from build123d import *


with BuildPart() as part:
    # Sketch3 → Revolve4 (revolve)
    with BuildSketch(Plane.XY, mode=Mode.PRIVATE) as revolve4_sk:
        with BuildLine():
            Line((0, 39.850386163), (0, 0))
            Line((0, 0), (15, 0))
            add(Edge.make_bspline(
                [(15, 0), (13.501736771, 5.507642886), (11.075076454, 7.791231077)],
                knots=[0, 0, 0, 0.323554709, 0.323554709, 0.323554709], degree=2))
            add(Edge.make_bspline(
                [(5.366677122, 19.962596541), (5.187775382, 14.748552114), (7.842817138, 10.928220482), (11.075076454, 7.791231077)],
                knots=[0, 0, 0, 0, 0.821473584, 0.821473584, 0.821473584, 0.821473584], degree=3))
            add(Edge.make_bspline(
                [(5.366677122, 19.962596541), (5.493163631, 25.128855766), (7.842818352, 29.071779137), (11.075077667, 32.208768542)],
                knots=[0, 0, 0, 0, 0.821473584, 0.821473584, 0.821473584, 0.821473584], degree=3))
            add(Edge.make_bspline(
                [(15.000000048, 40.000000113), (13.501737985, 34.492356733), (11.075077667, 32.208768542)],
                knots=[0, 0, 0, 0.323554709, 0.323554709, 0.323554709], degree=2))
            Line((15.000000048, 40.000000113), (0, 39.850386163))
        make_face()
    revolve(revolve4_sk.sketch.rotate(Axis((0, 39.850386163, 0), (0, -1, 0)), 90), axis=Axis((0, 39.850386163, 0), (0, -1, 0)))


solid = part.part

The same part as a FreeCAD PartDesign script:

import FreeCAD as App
import Part
import Sketcher

V = App.Vector

doc = App.newDocument("Part")
body = doc.addObject("PartDesign::Body", "Body")

sketch1 = doc.addObject("Sketcher::SketchObject", "Sketch")
body.addObject(sketch1)
sketch1.AttachmentSupport = (doc.XY_Plane, [""])
sketch1.MapMode = "FlatFace"
sketch1.addGeometry(Part.LineSegment(V(0, 39.850386, 0), V(0, 0, 0)), False)
sketch1.addGeometry(Part.LineSegment(V(0, 0, 0), V(15, 0, 0)), False)
sketch1.addGeometry(Part.BSplineCurve([V(15, 0, 0), V(13.501737, 5.507643, 0), V(11.075076, 7.791231, 0)], [3, 3], [0, 0.323554709], False, 2, [1, 1, 1], False), False)
sketch1.addGeometry(Part.BSplineCurve([V(5.366677, 19.962597, 0), V(5.187775, 14.748552, 0), V(7.842817, 10.92822, 0), V(11.075076, 7.791231, 0)], [4, 4], [0, 0.821473584], False, 3, [1, 1, 1, 1], False), False)
sketch1.addGeometry(Part.BSplineCurve([V(5.366677, 19.962597, 0), V(5.493164, 25.128856, 0), V(7.842818, 29.071779, 0), V(11.075078, 32.208769, 0)], [4, 4], [0, 0.821473584], False, 3, [1, 1, 1, 1], False), False)
sketch1.addGeometry(Part.BSplineCurve([V(15, 40, 0), V(13.501738, 34.492357, 0), V(11.075078, 32.208769, 0)], [3, 3], [0, 0.323554709], False, 2, [1, 1, 1], False), False)
sketch1.addGeometry(Part.LineSegment(V(15, 40, 0), V(0, 39.850386, 0)), False)
sketch1.addConstraint(Sketcher.Constraint("Block", 2))
sketch1.addConstraint(Sketcher.Constraint("Block", 3))
sketch1.addConstraint(Sketcher.Constraint("Block", 4))
sketch1.addConstraint(Sketcher.Constraint("Block", 5))
sketch1.addConstraint(Sketcher.Constraint("Coincident", 0, 2, 1, 1))
sketch1.addConstraint(Sketcher.Constraint("Coincident", 1, 2, 2, 1))
sketch1.addConstraint(Sketcher.Constraint("Coincident", 5, 1, 6, 1))
sketch1.addConstraint(Sketcher.Constraint("Coincident", 6, 2, 0, 1))
sketch1.addConstraint(Sketcher.Constraint("Vertical", 0))
sketch1.addConstraint(Sketcher.Constraint("Horizontal", 1))
sketch1.addConstraint(Sketcher.Constraint("PointOnObject", 6, 2, -2))
sketch1.addConstraint(Sketcher.Constraint("DistanceY", 0, 2, 0, 1, 39.850386))
revolution = doc.addObject("PartDesign::Revolution", "Revolution")
body.addObject(revolution)
revolution.Profile = sketch1
revolution.ReferenceAxis = (sketch1, ["V_Axis"])
revolution.Angle = 360

doc.recompute()
